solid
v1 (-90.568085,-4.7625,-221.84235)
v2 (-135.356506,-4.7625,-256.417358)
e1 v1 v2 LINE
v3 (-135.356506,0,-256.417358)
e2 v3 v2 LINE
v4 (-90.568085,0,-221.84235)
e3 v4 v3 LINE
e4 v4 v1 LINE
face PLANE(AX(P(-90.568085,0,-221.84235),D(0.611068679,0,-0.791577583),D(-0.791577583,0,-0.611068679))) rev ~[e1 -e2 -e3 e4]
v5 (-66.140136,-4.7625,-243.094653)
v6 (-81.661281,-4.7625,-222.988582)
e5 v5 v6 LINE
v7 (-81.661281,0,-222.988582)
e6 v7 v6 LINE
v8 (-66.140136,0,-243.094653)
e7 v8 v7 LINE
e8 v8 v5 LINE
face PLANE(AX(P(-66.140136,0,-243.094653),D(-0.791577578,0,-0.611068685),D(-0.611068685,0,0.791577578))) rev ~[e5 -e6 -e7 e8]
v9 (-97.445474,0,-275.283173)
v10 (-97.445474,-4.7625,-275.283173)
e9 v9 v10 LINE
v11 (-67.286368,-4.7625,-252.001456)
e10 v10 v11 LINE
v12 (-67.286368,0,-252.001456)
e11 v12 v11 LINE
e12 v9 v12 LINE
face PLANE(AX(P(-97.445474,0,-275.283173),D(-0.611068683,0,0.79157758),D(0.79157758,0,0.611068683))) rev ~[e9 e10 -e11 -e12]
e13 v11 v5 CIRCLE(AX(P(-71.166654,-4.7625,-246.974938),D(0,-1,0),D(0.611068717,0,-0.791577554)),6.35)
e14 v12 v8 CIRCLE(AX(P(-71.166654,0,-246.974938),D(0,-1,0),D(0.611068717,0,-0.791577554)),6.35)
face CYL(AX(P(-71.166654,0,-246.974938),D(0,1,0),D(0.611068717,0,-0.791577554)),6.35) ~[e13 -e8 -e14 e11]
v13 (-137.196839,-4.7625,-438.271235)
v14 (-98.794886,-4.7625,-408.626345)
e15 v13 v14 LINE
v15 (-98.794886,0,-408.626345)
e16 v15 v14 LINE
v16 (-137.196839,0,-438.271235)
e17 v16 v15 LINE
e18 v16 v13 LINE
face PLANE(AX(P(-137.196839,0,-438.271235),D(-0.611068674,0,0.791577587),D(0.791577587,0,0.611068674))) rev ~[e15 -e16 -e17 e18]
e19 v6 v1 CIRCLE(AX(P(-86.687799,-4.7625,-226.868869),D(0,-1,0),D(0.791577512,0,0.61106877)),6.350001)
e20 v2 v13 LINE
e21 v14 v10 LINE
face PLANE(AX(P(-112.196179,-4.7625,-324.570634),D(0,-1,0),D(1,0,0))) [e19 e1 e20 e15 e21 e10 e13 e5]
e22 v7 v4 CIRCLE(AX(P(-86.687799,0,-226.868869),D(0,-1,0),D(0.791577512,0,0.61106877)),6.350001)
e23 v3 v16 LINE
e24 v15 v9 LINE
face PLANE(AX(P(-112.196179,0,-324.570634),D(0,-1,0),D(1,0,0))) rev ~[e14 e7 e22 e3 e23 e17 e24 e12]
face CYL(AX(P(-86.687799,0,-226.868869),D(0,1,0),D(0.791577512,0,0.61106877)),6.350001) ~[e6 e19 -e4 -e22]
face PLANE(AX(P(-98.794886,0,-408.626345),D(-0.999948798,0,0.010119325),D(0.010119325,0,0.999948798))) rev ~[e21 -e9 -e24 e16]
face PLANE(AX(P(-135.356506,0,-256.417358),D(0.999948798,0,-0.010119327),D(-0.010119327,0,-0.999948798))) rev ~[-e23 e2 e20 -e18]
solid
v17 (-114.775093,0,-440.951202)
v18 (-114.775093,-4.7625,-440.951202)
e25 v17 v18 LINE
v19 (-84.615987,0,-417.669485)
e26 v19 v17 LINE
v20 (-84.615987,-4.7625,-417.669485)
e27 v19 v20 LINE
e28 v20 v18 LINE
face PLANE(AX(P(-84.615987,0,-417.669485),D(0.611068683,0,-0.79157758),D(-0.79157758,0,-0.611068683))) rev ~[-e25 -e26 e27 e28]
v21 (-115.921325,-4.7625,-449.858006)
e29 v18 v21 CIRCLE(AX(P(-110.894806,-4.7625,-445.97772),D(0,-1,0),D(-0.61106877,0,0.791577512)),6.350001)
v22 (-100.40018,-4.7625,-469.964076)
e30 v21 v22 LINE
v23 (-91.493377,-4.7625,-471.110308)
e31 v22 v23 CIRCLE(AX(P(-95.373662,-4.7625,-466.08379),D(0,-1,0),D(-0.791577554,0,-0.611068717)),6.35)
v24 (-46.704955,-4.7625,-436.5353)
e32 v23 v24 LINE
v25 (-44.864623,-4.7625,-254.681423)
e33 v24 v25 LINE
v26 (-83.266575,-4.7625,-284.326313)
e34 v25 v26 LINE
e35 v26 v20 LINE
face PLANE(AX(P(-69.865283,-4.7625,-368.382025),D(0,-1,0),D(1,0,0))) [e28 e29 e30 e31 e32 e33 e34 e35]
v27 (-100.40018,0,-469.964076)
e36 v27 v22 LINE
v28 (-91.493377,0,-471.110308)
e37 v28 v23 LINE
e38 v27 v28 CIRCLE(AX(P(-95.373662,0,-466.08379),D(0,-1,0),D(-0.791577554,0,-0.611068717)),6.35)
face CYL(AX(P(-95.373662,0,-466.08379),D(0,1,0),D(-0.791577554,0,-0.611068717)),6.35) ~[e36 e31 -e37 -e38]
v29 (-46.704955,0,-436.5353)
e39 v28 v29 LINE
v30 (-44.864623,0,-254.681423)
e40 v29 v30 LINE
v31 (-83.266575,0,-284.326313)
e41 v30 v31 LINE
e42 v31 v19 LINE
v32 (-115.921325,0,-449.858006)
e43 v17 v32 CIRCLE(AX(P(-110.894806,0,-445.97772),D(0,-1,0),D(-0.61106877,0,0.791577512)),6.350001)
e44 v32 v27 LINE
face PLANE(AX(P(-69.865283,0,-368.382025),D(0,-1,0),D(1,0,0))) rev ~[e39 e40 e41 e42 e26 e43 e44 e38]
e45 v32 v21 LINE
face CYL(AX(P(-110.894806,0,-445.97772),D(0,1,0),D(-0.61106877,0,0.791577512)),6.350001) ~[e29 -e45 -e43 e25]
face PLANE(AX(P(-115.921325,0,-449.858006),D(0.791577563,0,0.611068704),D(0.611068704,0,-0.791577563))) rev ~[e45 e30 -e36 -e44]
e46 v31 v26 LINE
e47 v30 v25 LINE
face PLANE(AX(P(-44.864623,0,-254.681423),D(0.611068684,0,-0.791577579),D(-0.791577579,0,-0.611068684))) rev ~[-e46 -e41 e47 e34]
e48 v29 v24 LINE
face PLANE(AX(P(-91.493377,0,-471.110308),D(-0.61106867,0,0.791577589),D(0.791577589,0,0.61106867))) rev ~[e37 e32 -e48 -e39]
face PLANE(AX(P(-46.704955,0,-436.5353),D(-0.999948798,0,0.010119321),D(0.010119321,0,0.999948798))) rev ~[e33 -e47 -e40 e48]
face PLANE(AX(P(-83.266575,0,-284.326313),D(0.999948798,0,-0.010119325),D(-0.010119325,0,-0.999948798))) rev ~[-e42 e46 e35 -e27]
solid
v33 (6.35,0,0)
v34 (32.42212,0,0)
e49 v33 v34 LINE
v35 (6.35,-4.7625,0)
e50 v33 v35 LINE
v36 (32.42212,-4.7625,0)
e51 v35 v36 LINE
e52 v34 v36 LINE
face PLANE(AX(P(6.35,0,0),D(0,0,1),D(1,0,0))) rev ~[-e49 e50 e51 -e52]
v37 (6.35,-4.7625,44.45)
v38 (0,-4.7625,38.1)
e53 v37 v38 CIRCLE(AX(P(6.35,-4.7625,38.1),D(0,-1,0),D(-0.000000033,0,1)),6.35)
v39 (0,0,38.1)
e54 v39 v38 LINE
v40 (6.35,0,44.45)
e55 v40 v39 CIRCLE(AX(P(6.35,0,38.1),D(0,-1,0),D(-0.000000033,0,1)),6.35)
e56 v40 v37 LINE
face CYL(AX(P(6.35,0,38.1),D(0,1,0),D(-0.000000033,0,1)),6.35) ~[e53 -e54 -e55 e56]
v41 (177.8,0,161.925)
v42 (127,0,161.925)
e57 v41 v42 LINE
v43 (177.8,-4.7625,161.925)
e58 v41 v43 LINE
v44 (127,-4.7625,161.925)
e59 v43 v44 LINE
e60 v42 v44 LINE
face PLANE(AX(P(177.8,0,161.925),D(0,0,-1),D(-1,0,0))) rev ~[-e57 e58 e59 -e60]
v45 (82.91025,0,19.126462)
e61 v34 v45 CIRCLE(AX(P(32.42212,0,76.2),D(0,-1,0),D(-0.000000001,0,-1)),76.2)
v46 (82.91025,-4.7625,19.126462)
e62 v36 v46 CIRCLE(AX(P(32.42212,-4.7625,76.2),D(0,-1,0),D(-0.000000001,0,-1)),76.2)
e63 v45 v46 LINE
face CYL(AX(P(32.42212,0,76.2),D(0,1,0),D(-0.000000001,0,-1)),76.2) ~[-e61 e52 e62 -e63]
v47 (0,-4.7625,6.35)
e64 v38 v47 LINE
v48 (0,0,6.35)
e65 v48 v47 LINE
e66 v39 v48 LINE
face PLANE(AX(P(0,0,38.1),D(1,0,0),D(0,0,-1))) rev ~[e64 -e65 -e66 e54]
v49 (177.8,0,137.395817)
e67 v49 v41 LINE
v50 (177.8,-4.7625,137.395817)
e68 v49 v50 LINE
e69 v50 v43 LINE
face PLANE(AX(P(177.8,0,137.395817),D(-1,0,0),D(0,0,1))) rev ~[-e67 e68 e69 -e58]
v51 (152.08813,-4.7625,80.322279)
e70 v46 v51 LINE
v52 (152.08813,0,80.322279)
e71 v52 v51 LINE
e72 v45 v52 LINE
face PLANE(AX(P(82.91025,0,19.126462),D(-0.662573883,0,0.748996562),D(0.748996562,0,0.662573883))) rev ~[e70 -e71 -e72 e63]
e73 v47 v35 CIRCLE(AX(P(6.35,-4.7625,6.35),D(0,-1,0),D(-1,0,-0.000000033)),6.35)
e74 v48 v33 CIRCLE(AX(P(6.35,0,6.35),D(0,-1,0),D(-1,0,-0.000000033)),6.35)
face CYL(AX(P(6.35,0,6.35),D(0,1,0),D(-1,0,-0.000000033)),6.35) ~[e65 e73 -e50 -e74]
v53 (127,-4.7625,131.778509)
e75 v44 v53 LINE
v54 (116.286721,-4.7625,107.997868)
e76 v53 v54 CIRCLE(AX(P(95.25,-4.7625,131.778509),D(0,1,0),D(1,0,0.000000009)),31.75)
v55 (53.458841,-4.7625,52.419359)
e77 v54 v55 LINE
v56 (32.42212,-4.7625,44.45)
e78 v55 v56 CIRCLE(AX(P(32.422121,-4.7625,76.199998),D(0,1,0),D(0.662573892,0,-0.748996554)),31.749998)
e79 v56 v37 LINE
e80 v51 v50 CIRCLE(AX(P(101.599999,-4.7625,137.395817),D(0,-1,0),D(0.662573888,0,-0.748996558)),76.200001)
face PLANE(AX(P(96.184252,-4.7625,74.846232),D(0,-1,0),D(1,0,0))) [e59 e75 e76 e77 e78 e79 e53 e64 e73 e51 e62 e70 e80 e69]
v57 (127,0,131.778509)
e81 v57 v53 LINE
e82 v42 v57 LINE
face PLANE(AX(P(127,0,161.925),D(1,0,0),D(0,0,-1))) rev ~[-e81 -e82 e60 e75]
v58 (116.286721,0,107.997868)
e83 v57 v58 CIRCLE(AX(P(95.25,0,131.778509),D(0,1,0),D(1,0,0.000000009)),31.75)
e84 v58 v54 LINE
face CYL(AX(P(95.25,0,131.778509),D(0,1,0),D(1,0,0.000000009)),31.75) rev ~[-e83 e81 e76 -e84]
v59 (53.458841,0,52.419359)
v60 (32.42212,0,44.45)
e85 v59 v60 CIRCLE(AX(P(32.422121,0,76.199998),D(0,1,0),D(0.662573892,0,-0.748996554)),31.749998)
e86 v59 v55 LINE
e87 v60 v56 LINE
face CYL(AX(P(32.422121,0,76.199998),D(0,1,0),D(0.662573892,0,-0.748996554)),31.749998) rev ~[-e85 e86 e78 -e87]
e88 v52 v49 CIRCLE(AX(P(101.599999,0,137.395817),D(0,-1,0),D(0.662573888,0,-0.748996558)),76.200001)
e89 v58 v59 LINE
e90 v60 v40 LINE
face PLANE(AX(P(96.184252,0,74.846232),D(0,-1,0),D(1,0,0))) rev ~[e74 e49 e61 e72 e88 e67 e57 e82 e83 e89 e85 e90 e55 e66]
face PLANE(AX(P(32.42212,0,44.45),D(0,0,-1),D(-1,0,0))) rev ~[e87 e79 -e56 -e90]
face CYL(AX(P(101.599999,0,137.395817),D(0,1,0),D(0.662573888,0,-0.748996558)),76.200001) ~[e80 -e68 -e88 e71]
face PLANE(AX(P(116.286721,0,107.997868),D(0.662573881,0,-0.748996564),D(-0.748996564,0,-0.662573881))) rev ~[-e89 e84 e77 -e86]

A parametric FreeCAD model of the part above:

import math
import FreeCAD as App
import Part
import Sketcher
from FreeCAD import Vector
Q = App.Units.Quantity

doc = App.newDocument("Part")
body = doc.addObject("PartDesign::Body", "Body")
body.AllowCompound = True

# Sketch on XZ plane
sketch1 = body.newObject("Sketcher::SketchObject", "Sketch")
sketch1.AttachmentSupport = (doc.getObject("XZ_Plane"), [""])
sketch1.MapMode = "FlatFace"
sketch1.addGeometry([
    Part.ArcOfCircle(Part.Circle(Vector(6, 6, 0), Vector(0, 0, 1), 6), math.radians(-180), math.radians(-90)),  # 0
    Part.LineSegment(Vector(6, 0, 0), Vector(32, 0, 0)),  # 1
    Part.ArcOfCircle(Part.Circle(Vector(32, 76, 0), Vector(0, 0, 1), 76), math.radians(-90), math.radians(-49)),  # 2
    Part.LineSegment(Vector(83, 19, 0), Vector(152, 80, 0)),  # 3
    Part.ArcOfCircle(Part.Circle(Vector(102, 137, 0), Vector(0, 0, 1), 76), math.radians(-49), math.radians(0)),  # 4
    Part.LineSegment(Vector(178, 137, 0), Vector(178, 162, 0)),  # 5
    Part.LineSegment(Vector(178, 162, 0), Vector(127, 162, 0)),  # 6
    Part.LineSegment(Vector(127, 162, 0), Vector(127, 132, 0)),  # 7
    Part.ArcOfCircle(Part.Circle(Vector(95, 132, 0), Vector(0, 0, 1), 32), math.radians(-49), math.radians(0)),  # 8
    Part.LineSegment(Vector(116, 108, 0), Vector(53, 52, 0)),  # 9
    Part.ArcOfCircle(Part.Circle(Vector(32, 76, 0), Vector(0, 0, 1), 32), math.radians(-90), math.radians(-49)),  # 10
    Part.LineSegment(Vector(32, 44, 0), Vector(6, 44, 0)),  # 11
    Part.ArcOfCircle(Part.Circle(Vector(6, 38, 0), Vector(0, 0, 1), 6), math.radians(90), math.radians(180)),  # 12
    Part.LineSegment(Vector(0, 38, 0), Vector(0, 6, 0)),  # 13
    Part.LineSegment(Vector(-85, -418, 0), Vector(-115, -441, 0)),  # 14
    Part.ArcOfCircle(Part.Circle(Vector(-111, -446, 0), Vector(0, 0, 1), 6), math.radians(128), math.radians(218)),  # 15
    Part.LineSegment(Vector(-116, -450, 0), Vector(-100, -470, 0)),  # 16
    Part.ArcOfCircle(Part.Circle(Vector(-95, -466, 0), Vector(0, 0, 1), 6), math.radians(-142), math.radians(-52)),  # 17
    Part.LineSegment(Vector(-91, -471, 0), Vector(-47, -437, 0)),  # 18
    Part.LineSegment(Vector(-47, -437, 0), Vector(-45, -255, 0)),  # 19
    Part.LineSegment(Vector(-45, -255, 0), Vector(-83, -284, 0)),  # 20
    Part.LineSegment(Vector(-83, -284, 0), Vector(-85, -418, 0)),  # 21
    Part.LineSegment(Vector(-66, -243, 0), Vector(-82, -223, 0)),  # 22
    Part.ArcOfCircle(Part.Circle(Vector(-87, -227, 0), Vector(0, 0, 1), 6), math.radians(38), math.radians(128)),  # 23
    Part.LineSegment(Vector(-91, -222, 0), Vector(-135, -256, 0)),  # 24
    Part.LineSegment(Vector(-135, -256, 0), Vector(-137, -438, 0)),  # 25
    Part.LineSegment(Vector(-137, -438, 0), Vector(-99, -409, 0)),  # 26
    Part.LineSegment(Vector(-99, -409, 0), Vector(-97, -275, 0)),  # 27
    Part.LineSegment(Vector(-97, -275, 0), Vector(-67, -252, 0)),  # 28
    Part.ArcOfCircle(Part.Circle(Vector(-71, -247, 0), Vector(0, 0, 1), 6), math.radians(-52), math.radians(38)),  # 29
], False)
sketch1.addConstraint([
    Sketcher.Constraint("Tangent", 0, 2, 1, 1),
    Sketcher.Constraint("Tangent", 1, 2, 2, 1),
    Sketcher.Constraint("Tangent", 2, 2, 3, 1),
    Sketcher.Constraint("Tangent", 3, 2, 4, 1),
    Sketcher.Constraint("Tangent", 4, 2, 5, 1),
    Sketcher.Constraint("Coincident", 5, 2, 6, 1),
    Sketcher.Constraint("Coincident", 6, 2, 7, 1),
    Sketcher.Constraint("Tangent", 7, 2, 8, 2),
    Sketcher.Constraint("Tangent", 8, 1, 9, 1),
    Sketcher.Constraint("Tangent", 9, 2, 10, 2),
    Sketcher.Constraint("Tangent", 10, 1, 11, 1),
    Sketcher.Constraint("Tangent", 11, 2, 12, 1),
    Sketcher.Constraint("Tangent", 12, 2, 13, 1),
    Sketcher.Constraint("Tangent", 13, 2, 0, 1),
    Sketcher.Constraint("Tangent", 14, 2, 15, 1),
    Sketcher.Constraint("Tangent", 15, 2, 16, 1),
    Sketcher.Constraint("Tangent", 16, 2, 17, 1),
    Sketcher.Constraint("Tangent", 17, 2, 18, 1),
    Sketcher.Constraint("Coincident", 18, 2, 19, 1),
    Sketcher.Constraint("Coincident", 19, 2, 20, 1),
    Sketcher.Constraint("Coincident", 20, 2, 21, 1),
    Sketcher.Constraint("Coincident", 21, 2, 14, 1),
    Sketcher.Constraint("Tangent", 22, 2, 23, 1),
    Sketcher.Constraint("Tangent", 23, 2, 24, 1),
    Sketcher.Constraint("Coincident", 24, 2, 25, 1),
    Sketcher.Constraint("Coincident", 25, 2, 26, 1),
    Sketcher.Constraint("Coincident", 26, 2, 27, 1),
    Sketcher.Constraint("Coincident", 27, 2, 28, 1),
    Sketcher.Constraint("Tangent", 28, 2, 29, 1),
    Sketcher.Constraint("Tangent", 29, 2, 22, 1),
    Sketcher.Constraint("Horizontal", 1),
    Sketcher.Constraint("Vertical", 5),
    Sketcher.Constraint("Horizontal", 6),
    Sketcher.Constraint("Vertical", 7),
    Sketcher.Constraint("Horizontal", 11),
    Sketcher.Constraint("Vertical", 13),
    Sketcher.Constraint("Coincident", 10, 3, 2, 3),
    Sketcher.Constraint("Equal", 2, 4),
    Sketcher.Constraint("Equal", 8, 10),
    Sketcher.Constraint("Equal", 0, 12),
    Sketcher.Constraint("Equal", 12, 15),
    Sketcher.Constraint("Equal", 15, 17),
    Sketcher.Constraint("Equal", 17, 23),
    Sketcher.Constraint("Equal", 23, 29),
    Sketcher.Constraint("PointOnObject", 0, 2, -1),
    Sketcher.Constraint("PointOnObject", 12, 2, -2),
    Sketcher.Constraint("Parallel", 3, 9),
    Sketcher.Constraint("Perpendicular", 14, 16),
    Sketcher.Constraint("Perpendicular", 16, 18),
    Sketcher.Constraint("Parallel", 18, 20),
    Sketcher.Constraint("Parallel", 19, 21),
    Sketcher.Constraint("Perpendicular", 20, 22),
    Sketcher.Constraint("Perpendicular", 22, 24),
    Sketcher.Constraint("Parallel", 21, 25),
    Sketcher.Constraint("Parallel", 24, 26),
    Sketcher.Constraint("Parallel", 25, 27),
    Sketcher.Constraint("Parallel", 26, 28),
    Sketcher.Constraint("Equal", 16, 22),
    Sketcher.Constraint("Equal", 18, 24),
    Sketcher.Constraint("Equal", 19, 25),
    Sketcher.Constraint("Equal", 20, 26),
    Sketcher.Constraint("Radius", 2, Q("3 in")),
    Sketcher.Constraint("DistanceX", 6, 2, 6, 1, Q("2 in")),
    Sketcher.Constraint("Radius", 0, Q("0.25 in")),
    Sketcher.Constraint("Radius", 8, Q("1.25 in")),
    Sketcher.Constraint("Distance", 16, Q("1 in")),
    Sketcher.Constraint("DistanceX", -1, 1, 4, 3, Q("4 in")),
    Sketcher.Constraint("Distance", 14, Q("1.5 in")),
    Sketcher.Constraint("Distance", 21, Q("5.25 in")),
    Sketcher.Constraint("DistanceY", -1, 1, 5, 2, Q("6.375 in")),
    Sketcher.Constraint("DistanceY", 15, 2, 23, 3, Q("8.7790999 in")),
    Sketcher.Constraint("DistanceX", 1, 1, 1, 2, 26.07212),
    Sketcher.Constraint("DistanceY", 7, 2, 7, 1, 30.146491),
    Sketcher.Constraint("DistanceX", 23, 3, -1, 1, 86.687799),
    Sketcher.Constraint("DistanceY", 18, 2, -1, 1, 436.5353),
    Sketcher.Constraint("DistanceY", 17, 2, 15, 2, 21.252302),
    Sketcher.Constraint("DistanceX", 26, 2, 21, 2, 14.178899),
    Sketcher.Constraint("Distance", 19, 181.863189),
    Sketcher.Constraint("Distance", 20, 48.513188),
])
pad1 = body.newObject("PartDesign::Pad", "Pad")
pad1.Profile = sketch1
pad1.Length = Q("0.1875 in")

doc.recompute()
